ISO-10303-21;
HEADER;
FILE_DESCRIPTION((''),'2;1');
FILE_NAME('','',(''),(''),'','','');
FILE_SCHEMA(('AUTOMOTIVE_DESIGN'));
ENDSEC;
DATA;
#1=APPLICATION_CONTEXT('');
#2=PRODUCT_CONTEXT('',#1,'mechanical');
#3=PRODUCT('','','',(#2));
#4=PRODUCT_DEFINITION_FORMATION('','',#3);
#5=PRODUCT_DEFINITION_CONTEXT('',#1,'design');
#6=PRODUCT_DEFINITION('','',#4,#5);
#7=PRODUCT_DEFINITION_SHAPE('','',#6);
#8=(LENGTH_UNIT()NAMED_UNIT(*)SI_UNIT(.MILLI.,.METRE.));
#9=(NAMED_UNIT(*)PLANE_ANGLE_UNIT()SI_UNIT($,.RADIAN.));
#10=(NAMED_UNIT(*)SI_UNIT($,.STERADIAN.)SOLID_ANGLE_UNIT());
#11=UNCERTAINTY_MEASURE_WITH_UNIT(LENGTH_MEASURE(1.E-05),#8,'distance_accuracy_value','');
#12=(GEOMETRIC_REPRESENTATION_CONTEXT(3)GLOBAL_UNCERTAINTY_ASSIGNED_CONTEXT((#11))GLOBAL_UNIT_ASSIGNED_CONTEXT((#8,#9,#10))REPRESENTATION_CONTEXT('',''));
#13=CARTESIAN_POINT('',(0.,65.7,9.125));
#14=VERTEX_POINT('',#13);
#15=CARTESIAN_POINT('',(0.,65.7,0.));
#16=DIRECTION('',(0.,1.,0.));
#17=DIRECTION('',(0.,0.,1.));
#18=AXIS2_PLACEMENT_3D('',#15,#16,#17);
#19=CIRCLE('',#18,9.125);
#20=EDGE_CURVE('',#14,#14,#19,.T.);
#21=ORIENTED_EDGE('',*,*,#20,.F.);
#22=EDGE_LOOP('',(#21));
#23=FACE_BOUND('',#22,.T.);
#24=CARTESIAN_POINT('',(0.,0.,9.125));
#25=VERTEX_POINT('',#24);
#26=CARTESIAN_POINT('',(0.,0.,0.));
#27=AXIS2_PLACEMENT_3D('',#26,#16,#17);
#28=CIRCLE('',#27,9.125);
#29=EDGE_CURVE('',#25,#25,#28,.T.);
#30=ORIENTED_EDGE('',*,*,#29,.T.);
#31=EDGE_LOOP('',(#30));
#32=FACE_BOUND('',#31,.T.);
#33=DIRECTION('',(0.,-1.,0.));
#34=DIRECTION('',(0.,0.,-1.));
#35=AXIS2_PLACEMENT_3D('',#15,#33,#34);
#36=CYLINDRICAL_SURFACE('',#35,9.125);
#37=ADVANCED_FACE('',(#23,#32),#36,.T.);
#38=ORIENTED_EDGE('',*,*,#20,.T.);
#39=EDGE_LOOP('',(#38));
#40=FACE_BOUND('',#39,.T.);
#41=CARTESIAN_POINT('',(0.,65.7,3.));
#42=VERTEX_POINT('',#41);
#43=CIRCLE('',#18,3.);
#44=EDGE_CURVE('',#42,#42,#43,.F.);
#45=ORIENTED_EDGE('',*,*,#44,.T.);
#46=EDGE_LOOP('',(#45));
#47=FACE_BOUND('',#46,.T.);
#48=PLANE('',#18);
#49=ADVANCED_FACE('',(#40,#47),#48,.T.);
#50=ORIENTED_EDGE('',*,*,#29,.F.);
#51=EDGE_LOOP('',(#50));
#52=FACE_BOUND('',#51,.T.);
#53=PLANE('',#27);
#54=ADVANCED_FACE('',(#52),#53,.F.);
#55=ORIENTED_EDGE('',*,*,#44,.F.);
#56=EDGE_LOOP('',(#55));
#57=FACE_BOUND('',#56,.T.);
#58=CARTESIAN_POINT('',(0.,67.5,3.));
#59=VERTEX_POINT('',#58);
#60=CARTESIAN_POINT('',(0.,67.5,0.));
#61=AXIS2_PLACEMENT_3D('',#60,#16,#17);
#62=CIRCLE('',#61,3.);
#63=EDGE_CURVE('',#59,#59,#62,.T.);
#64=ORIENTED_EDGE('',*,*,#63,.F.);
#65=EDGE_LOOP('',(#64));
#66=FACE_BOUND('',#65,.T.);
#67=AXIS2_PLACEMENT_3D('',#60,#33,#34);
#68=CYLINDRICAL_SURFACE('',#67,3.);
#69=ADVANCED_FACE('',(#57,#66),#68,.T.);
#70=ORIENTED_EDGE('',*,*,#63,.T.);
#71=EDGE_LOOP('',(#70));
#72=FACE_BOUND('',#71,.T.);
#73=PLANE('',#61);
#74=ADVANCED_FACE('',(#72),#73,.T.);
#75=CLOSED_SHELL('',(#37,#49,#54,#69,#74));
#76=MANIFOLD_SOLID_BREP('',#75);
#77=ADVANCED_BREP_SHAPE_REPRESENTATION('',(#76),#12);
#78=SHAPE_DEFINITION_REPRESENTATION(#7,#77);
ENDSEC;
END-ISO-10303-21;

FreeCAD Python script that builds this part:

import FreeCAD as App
import Part
import Sketcher
from FreeCAD import Vector

doc = App.newDocument("Part")
body = doc.addObject("PartDesign::Body", "Body")

# Sketch on XZ plane
sketch1 = body.newObject("Sketcher::SketchObject", "Sketch")
sketch1.AttachmentSupport = (doc.getObject("XZ_Plane"), [""])
sketch1.MapMode = "FlatFace"
sketch1.addGeometry(Part.Circle(Vector(0, 0, 0), Vector(0, 0, 1), 9), False)
sketch1.addConstraint(Sketcher.Constraint("Coincident", 0, 3, -1, 1))
sketch1.addConstraint(Sketcher.Constraint("Diameter", 0, 18.25))
pad1 = body.newObject("PartDesign::Pad", "Pad")
pad1.Profile = sketch1
pad1.Length = 65.7
pad1.Reversed = True

# Sketch on XZ plane
sketch2 = body.newObject("Sketcher::SketchObject", "Sketch001")
sketch2.AttachmentSupport = (doc.getObject("XZ_Plane"), [""])
sketch2.MapMode = "FlatFace"
sketch2.addGeometry(Part.Circle(Vector(0, 0, 0), Vector(0, 0, 1), 3), False)
sketch2.addConstraint(Sketcher.Constraint("Coincident", 0, 3, -1, 1))
sketch2.addConstraint(Sketcher.Constraint("Diameter", 0, 6.0))
pad2 = body.newObject("PartDesign::Pad", "Pad001")
pad2.Profile = sketch2
pad2.Length = 67.5
pad2.Reversed = True

doc.recompute()
